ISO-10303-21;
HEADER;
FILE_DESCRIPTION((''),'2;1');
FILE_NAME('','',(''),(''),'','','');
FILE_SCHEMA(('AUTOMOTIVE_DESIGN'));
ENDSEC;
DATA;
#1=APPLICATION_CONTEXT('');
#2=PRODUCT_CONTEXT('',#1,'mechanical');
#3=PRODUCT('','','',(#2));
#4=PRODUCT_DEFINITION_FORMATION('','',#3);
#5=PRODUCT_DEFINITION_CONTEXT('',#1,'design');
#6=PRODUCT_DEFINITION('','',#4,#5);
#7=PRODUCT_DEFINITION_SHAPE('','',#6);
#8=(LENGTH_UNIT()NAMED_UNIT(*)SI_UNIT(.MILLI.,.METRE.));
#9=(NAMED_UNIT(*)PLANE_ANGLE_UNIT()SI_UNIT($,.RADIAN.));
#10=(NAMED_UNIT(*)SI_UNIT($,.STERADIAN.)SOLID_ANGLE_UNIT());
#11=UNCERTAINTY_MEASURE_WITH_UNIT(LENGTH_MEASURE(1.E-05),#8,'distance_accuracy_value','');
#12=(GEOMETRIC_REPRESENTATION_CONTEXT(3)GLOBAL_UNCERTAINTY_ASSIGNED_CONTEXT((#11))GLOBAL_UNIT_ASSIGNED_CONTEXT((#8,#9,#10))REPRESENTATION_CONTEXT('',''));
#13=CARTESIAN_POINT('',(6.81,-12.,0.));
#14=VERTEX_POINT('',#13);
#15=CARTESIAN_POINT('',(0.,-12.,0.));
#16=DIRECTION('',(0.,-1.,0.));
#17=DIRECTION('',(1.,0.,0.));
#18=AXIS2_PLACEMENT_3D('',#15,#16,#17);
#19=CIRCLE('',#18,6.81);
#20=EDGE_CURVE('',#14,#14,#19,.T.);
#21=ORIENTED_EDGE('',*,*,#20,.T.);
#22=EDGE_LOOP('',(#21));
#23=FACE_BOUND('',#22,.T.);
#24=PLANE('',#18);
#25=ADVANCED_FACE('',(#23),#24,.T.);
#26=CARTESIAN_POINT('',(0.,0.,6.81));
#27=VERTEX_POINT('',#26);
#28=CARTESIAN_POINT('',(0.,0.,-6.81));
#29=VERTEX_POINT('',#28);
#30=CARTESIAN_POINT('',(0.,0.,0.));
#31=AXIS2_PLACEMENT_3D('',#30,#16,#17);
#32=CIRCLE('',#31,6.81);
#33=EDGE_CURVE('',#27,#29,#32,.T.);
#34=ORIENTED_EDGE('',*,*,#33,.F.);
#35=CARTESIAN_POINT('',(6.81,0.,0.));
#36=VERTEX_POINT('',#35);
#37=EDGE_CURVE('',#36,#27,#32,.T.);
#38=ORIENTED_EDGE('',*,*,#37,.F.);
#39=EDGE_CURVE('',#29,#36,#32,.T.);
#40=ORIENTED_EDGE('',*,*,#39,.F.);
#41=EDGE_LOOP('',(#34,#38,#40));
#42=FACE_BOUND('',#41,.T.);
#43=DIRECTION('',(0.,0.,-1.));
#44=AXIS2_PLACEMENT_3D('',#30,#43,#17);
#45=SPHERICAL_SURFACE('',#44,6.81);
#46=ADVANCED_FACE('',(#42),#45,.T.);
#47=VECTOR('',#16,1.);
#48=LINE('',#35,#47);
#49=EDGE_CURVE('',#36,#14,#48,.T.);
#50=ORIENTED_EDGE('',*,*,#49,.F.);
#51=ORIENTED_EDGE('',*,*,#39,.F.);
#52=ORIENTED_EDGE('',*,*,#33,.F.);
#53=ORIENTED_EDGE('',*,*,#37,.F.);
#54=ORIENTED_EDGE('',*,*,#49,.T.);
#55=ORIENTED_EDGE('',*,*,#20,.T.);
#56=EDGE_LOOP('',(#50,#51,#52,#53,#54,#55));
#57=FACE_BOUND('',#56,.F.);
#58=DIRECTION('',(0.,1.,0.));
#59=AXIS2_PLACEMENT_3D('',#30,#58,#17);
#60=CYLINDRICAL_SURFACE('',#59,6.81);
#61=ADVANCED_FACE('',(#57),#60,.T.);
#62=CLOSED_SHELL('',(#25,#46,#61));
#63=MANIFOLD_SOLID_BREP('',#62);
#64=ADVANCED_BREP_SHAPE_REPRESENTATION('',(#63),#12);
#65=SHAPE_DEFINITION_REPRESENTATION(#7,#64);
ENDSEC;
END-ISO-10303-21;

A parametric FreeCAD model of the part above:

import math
import FreeCAD as App
import Part
import Sketcher

V = App.Vector

doc = App.newDocument("Part")
body = doc.addObject("PartDesign::Body", "Body")

# Sketch on XZ plane
sketch1 = doc.addObject("Sketcher::SketchObject", "Sketch")
body.addObject(sketch1)
sketch1.AttachmentSupport = (doc.XZ_Plane, [""])
sketch1.MapMode = "FlatFace"
sketch1.addGeometry(Part.Circle(V(0, 0, 0), V(0, 0, 1), 6.81), False)
sketch1.addConstraint(Sketcher.Constraint("Coincident", 0, 3, -1, 1))
sketch1.addConstraint(Sketcher.Constraint("Diameter", 0, 13.62))
pad1 = doc.addObject("PartDesign::Pad", "Pad")
body.addObject(pad1)
pad1.Profile = sketch1
pad1.Length = 12

# Sketch on XZ plane
sketch2 = doc.addObject("Sketcher::SketchObject", "Sketch001")
body.addObject(sketch2)
sketch2.AttachmentSupport = (doc.XZ_Plane, [""])
sketch2.MapMode = "FlatFace"
sketch2.addGeometry(Part.LineSegment(V(0, -6.81, 0), V(0, 6.81, 0)), False)
sketch2.addGeometry(Part.ArcOfCircle(Part.Circle(V(0, 0, 0), V(0, 0, 1), 6.81), math.radians(-90), math.radians(90)), False)
sketch2.addConstraint(Sketcher.Constraint("Coincident", 0, 1, 1, 1))
sketch2.addConstraint(Sketcher.Constraint("Coincident", 1, 2, 0, 2))
sketch2.addConstraint(Sketcher.Constraint("Vertical", 0))
sketch2.addConstraint(Sketcher.Constraint("Coincident", 1, 3, -1, 1))
sketch2.addConstraint(Sketcher.Constraint("PointOnObject", 0, 1, -2))
sketch2.addConstraint(Sketcher.Constraint("Radius", 1, 6.81))
revolution = doc.addObject("PartDesign::Revolution", "Revolution")
body.addObject(revolution)
revolution.Profile = sketch2
revolution.ReferenceAxis = (sketch2, ["V_Axis"])
revolution.Angle = 360

doc.recompute()
